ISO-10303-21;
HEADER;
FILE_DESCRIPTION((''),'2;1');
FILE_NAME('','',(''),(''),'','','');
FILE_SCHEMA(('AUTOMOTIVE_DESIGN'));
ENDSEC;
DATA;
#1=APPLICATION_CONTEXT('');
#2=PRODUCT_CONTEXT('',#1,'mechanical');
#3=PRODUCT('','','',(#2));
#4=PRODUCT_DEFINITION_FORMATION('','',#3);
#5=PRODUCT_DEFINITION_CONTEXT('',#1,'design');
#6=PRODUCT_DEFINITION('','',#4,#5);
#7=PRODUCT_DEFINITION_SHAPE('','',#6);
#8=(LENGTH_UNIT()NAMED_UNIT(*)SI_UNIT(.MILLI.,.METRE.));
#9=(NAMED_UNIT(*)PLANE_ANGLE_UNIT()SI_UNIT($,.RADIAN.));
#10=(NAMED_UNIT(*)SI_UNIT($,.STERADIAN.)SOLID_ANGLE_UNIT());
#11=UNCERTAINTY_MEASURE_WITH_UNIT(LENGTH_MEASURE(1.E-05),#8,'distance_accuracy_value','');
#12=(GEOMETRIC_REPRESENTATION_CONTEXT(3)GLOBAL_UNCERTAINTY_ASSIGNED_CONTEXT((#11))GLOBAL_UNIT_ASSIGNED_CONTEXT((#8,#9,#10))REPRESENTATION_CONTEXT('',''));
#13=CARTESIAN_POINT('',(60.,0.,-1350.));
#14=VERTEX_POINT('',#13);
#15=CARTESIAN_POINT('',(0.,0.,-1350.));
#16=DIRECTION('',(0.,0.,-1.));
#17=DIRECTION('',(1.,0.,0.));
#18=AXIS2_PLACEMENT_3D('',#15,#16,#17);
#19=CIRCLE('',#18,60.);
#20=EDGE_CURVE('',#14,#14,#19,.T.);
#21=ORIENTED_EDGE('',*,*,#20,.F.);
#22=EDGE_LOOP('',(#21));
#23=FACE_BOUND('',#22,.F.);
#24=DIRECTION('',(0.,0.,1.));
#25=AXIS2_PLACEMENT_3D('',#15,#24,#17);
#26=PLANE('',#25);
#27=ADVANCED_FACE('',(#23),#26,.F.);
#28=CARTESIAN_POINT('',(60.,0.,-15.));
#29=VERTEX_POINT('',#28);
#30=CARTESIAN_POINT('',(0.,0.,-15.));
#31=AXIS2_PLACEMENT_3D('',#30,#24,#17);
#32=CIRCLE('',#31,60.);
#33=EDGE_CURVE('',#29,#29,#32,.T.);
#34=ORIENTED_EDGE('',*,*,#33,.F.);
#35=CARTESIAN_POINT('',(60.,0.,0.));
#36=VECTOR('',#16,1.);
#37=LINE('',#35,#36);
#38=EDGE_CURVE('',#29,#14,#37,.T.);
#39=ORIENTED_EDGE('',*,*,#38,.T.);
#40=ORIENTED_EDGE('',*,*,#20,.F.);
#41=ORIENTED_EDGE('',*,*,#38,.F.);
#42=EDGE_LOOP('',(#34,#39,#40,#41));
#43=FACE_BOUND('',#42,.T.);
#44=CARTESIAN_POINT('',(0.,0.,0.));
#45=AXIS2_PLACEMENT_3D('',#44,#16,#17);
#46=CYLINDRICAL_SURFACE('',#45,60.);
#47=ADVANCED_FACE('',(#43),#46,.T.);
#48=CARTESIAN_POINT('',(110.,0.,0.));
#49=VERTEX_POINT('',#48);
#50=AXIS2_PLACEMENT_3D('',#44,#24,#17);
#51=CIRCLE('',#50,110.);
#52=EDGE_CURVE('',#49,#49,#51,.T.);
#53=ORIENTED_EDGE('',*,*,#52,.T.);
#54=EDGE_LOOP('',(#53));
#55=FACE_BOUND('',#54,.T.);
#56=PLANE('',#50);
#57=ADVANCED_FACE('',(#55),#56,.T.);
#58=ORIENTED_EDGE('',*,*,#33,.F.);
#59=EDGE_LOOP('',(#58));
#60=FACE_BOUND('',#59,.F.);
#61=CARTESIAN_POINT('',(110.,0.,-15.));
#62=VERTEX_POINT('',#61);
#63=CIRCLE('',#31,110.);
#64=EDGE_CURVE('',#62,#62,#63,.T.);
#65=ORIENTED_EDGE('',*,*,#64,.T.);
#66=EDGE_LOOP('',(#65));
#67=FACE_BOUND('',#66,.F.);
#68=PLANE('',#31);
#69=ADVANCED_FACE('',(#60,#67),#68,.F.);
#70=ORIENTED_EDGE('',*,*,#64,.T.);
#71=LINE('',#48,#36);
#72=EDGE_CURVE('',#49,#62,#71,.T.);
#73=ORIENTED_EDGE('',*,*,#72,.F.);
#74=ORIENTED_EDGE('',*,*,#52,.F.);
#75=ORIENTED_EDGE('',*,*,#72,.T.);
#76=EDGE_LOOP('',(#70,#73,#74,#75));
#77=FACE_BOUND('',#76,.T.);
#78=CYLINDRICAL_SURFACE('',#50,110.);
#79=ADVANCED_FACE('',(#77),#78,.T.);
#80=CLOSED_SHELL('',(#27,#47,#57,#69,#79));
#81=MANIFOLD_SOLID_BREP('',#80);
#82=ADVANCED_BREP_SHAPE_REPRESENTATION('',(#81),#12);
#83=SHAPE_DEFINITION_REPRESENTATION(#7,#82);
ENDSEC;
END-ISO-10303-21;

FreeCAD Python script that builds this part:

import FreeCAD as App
import Part
import Sketcher
from FreeCAD import Vector

doc = App.newDocument("Part")
params = doc.addObject("Spreadsheet::Sheet", "Params")
for row, (alias, value) in enumerate([
    ("sketch1_diameter", "120 mm"),
    ("sketch2_height", "1350 mm"),
    ("sketch3_diameter", "220 mm"),
    ("sketch3_diameter2", "120 mm"),
    ("pad1_length", "15 mm"),
], start=1):
    params.set(f"A{row}", alias)
    params.set(f"B{row}", "=" + value)
    params.setAlias(f"B{row}", alias)

body = doc.addObject("PartDesign::Body", "Body")

# Sketch on XY plane
sketch1 = body.newObject("Sketcher::SketchObject", "Sketch")
sketch1.AttachmentSupport = (doc.getObject("XY_Plane"), [""])
sketch1.MapMode = "FlatFace"
sketch1.addGeometry(Part.Circle(Vector(0, 0, 0), Vector(0, 0, 1), 60), False)
sketch1.addConstraint([
    Sketcher.Constraint("Coincident", 0, 3, -1, 1),
    Sketcher.Constraint("Diameter", 0, 120.0),
])
sketch1.setExpression("Constraints[1]", "Params.sketch1_diameter")

# Sketch on XZ plane
sketch2 = body.newObject("Sketcher::SketchObject", "Sketch001")
sketch2.AttachmentSupport = (doc.getObject("XZ_Plane"), [""])
sketch2.MapMode = "FlatFace"
sketch2.addGeometry(Part.LineSegment(Vector(0, 0, 0), Vector(0, -1350, 0)), False)
sketch2.addConstraint([
    Sketcher.Constraint("Vertical", 0),
    Sketcher.Constraint("Coincident", 0, 1, -1, 1),
    Sketcher.Constraint("DistanceY", 0, 2, 0, 1, 1350.0),
])
sketch2.setExpression("Constraints[2]", "Params.sketch2_height")
doc.recompute()

additivepipe = body.newObject("PartDesign::AdditivePipe", "AdditivePipe")
additivepipe.Profile = sketch1
additivepipe.Spine = (sketch2, ["Edge1"])

# Sketch on XY plane
sketch3 = body.newObject("Sketcher::SketchObject", "Sketch002")
sketch3.AttachmentSupport = (doc.getObject("XY_Plane"), [""])
sketch3.MapMode = "FlatFace"
sketch3.addGeometry([
    Part.Circle(Vector(0, 0, 0), Vector(0, 0, 1), 110),
    Part.Circle(Vector(0, 0, 0), Vector(0, 0, 1), 60),
], False)
sketch3.addConstraint([
    Sketcher.Constraint("Coincident", 0, 3, -1, 1),
    Sketcher.Constraint("Coincident", 1, 3, -1, 1),
    Sketcher.Constraint("Diameter", 0, 220.0),
    Sketcher.Constraint("Diameter", 1, 120.0),
])
sketch3.setExpression("Constraints[2]", "Params.sketch3_diameter")
sketch3.setExpression("Constraints[3]", "Params.sketch3_diameter2")
pad1 = body.newObject("PartDesign::Pad", "Pad")
pad1.Profile = sketch3
pad1.setExpression("Length", "Params.pad1_length")
pad1.Reversed = True

doc.recompute()
